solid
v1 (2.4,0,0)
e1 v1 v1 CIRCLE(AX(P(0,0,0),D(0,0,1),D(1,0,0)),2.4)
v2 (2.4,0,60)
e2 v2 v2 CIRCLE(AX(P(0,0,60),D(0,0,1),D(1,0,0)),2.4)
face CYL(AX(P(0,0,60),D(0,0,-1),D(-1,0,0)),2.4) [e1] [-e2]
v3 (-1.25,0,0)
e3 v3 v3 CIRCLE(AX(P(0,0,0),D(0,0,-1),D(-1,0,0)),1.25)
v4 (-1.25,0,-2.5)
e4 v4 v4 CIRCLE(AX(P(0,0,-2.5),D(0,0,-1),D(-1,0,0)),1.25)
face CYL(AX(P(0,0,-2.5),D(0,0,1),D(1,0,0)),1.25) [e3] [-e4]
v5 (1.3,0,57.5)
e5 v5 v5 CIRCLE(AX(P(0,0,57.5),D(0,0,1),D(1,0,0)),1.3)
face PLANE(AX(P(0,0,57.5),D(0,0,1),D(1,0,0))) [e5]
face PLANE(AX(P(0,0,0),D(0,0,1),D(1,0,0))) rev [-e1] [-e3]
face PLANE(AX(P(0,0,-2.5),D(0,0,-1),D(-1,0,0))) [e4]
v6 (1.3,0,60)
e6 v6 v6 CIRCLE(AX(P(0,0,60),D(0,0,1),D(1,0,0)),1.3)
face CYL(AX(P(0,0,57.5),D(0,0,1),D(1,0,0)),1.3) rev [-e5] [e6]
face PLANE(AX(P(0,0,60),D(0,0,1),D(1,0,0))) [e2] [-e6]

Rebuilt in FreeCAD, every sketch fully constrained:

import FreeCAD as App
import Part
import Sketcher
from FreeCAD import Vector

doc = App.newDocument("Part")
body = doc.addObject("PartDesign::Body", "Body")

sketch1 = body.newObject("Sketcher::SketchObject", "Sketch")
sketch1.AttachmentSupport = (doc.getObject("XY_Plane"), [""])
sketch1.MapMode = "FlatFace"
sketch1.addGeometry(Part.Circle(Vector(0, 0, 0), Vector(0, 0, 1), 2.4), False)
sketch1.addConstraint([
    Sketcher.Constraint("Coincident", 0, 3, -1, 1),
    Sketcher.Constraint("Diameter", 0, 4.8),
])
pad1 = body.newObject("PartDesign::Pad", "Pad")
pad1.Profile = sketch1
pad1.Length = 60

sketch2 = body.newObject("Sketcher::SketchObject", "Sketch001")
sketch2.AttachmentSupport = (doc.getObject("XY_Plane"), [""])
sketch2.MapMode = "FlatFace"
sketch2.addGeometry(Part.Circle(Vector(0, 0, 0), Vector(0, 0, 1), 1.25), False)
sketch2.addConstraint([
    Sketcher.Constraint("Coincident", 0, 3, -1, 1),
    Sketcher.Constraint("Diameter", 0, 2.5),
])
pad2 = body.newObject("PartDesign::Pad", "Pad001")
pad2.Profile = sketch2
pad2.Length = 2.5
pad2.Reversed = True

sketch3 = body.newObject("Sketcher::SketchObject", "Sketch002")
sketch3.AttachmentSupport = (doc.getObject("XY_Plane"), [""])
sketch3.MapMode = "FlatFace"
sketch3.AttachmentOffset = App.Placement(Vector(0, 0, 60), App.Rotation())
sketch3.addGeometry(Part.Circle(Vector(0, 0, 0), Vector(0, 0, 1), 1.3), False)
sketch3.addConstraint([
    Sketcher.Constraint("Coincident", 0, 3, -1, 1),
    Sketcher.Constraint("Diameter", 0, 2.6),
])
pocket1 = body.newObject("PartDesign::Pocket", "Pocket")
pocket1.Profile = sketch3
pocket1.Length = 2.5

doc.recompute()
